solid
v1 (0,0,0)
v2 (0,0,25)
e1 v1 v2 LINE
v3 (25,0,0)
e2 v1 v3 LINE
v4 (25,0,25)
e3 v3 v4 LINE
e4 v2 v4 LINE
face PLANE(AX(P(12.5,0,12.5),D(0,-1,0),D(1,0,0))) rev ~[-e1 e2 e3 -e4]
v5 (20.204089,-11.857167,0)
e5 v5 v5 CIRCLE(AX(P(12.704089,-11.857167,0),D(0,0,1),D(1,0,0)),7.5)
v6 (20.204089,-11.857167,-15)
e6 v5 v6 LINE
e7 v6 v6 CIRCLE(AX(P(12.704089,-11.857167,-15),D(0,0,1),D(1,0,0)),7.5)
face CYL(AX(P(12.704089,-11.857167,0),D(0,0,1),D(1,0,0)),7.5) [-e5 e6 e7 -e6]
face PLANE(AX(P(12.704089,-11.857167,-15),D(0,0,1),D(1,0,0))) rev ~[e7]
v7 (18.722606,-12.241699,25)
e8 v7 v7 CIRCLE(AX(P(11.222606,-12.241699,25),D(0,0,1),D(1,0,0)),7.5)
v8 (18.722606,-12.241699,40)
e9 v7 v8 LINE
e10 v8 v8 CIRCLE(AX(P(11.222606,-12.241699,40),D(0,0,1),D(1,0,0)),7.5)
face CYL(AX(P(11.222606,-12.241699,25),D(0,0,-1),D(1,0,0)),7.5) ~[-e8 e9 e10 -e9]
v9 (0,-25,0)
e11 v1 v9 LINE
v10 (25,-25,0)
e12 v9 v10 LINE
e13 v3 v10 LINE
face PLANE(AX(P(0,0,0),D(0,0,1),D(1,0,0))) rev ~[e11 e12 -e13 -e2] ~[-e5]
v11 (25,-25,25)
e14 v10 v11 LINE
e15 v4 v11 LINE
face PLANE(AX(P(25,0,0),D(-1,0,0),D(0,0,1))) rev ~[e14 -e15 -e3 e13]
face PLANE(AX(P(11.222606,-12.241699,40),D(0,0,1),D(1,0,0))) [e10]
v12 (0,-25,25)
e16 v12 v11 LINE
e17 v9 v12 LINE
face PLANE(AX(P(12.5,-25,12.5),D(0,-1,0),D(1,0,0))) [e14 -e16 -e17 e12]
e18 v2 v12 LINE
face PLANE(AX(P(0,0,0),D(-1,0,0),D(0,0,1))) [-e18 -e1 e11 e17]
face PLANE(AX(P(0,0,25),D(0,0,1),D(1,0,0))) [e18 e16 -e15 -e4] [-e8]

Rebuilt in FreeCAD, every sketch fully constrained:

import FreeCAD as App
import Part
import Sketcher

V = App.Vector
Q = App.Units.Quantity


def add_polygon(sketch, points):
    """Adds a closed chain of lines whose ends are joined by coincident constraints."""
    first, n = sketch.GeometryCount, len(points)
    for a, b in zip(points, points[1:] + points[:1]):
        sketch.addGeometry(Part.LineSegment(App.Vector(*a, 0), App.Vector(*b, 0)), False)
    for i in range(n):
        sketch.addConstraint(Sketcher.Constraint("Coincident", first + i, 2, first + (i + 1) % n, 1))

doc = App.newDocument("Part")
body = doc.addObject("PartDesign::Body", "Body")

sketch1 = body.newObject("Sketcher::SketchObject", "Sketch")
sketch1.AttachmentSupport = (doc.getObject("XZ_Plane"), [""])
sketch1.MapMode = "FlatFace"
add_polygon(sketch1, [(0, 25), (0, 0), (25, 0), (25, 25)])
sketch1.addConstraint(Sketcher.Constraint("Vertical", 0))
sketch1.addConstraint(Sketcher.Constraint("Horizontal", 1))
sketch1.addConstraint(Sketcher.Constraint("Vertical", 2))
sketch1.addConstraint(Sketcher.Constraint("Horizontal", 3))
sketch1.addConstraint(Sketcher.Constraint("Coincident", 0, 2, -1, 1))
sketch1.addConstraint(Sketcher.Constraint("Equal", 3, 0))
sketch1.addConstraint(Sketcher.Constraint("DistanceX", 1, 1, 1, 2, Q("25 mm")))
pad1 = body.newObject("PartDesign::Pad", "Pad")
pad1.Profile = sketch1
pad1.Length = 25

sketch2 = body.newObject("Sketcher::SketchObject", "Sketch001")
sketch2.AttachmentSupport = (doc.getObject("XY_Plane"), [""])
sketch2.MapMode = "FlatFace"
sketch2.addGeometry(Part.Circle(V(13, -12, 0), V(0, 0, 1), 8), False)
sketch2.addConstraint(Sketcher.Constraint("Diameter", 0, Q("15 mm")))
sketch2.addConstraint(Sketcher.Constraint("DistanceX", -1, 1, 0, 3, Q("12.704089 mm")))
sketch2.addConstraint(Sketcher.Constraint("DistanceY", 0, 3, -1, 1, Q("11.857167 mm")))
pad2 = body.newObject("PartDesign::Pad", "Pad001")
pad2.Profile = sketch2
pad2.Length = 15
pad2.Reversed = True

sketch3 = body.newObject("Sketcher::SketchObject", "Sketch002")
sketch3.AttachmentSupport = (doc.getObject("XY_Plane"), [""])
sketch3.MapMode = "FlatFace"
sketch3.AttachmentOffset = App.Placement(V(0, 0, 25), App.Rotation())
sketch3.addGeometry(Part.Circle(V(11, -12, 0), V(0, 0, 1), 8), False)
sketch3.addConstraint(Sketcher.Constraint("Diameter", 0, Q("15 mm")))
sketch3.addConstraint(Sketcher.Constraint("DistanceY", 0, 3, -1, 1, Q("12.241699 mm")))
sketch3.addConstraint(Sketcher.Constraint("DistanceX", -1, 1, 0, 3, Q("11.222606 mm")))
pad3 = body.newObject("PartDesign::Pad", "Pad002")
pad3.Profile = sketch3
pad3.Length = 15

doc.recompute()
